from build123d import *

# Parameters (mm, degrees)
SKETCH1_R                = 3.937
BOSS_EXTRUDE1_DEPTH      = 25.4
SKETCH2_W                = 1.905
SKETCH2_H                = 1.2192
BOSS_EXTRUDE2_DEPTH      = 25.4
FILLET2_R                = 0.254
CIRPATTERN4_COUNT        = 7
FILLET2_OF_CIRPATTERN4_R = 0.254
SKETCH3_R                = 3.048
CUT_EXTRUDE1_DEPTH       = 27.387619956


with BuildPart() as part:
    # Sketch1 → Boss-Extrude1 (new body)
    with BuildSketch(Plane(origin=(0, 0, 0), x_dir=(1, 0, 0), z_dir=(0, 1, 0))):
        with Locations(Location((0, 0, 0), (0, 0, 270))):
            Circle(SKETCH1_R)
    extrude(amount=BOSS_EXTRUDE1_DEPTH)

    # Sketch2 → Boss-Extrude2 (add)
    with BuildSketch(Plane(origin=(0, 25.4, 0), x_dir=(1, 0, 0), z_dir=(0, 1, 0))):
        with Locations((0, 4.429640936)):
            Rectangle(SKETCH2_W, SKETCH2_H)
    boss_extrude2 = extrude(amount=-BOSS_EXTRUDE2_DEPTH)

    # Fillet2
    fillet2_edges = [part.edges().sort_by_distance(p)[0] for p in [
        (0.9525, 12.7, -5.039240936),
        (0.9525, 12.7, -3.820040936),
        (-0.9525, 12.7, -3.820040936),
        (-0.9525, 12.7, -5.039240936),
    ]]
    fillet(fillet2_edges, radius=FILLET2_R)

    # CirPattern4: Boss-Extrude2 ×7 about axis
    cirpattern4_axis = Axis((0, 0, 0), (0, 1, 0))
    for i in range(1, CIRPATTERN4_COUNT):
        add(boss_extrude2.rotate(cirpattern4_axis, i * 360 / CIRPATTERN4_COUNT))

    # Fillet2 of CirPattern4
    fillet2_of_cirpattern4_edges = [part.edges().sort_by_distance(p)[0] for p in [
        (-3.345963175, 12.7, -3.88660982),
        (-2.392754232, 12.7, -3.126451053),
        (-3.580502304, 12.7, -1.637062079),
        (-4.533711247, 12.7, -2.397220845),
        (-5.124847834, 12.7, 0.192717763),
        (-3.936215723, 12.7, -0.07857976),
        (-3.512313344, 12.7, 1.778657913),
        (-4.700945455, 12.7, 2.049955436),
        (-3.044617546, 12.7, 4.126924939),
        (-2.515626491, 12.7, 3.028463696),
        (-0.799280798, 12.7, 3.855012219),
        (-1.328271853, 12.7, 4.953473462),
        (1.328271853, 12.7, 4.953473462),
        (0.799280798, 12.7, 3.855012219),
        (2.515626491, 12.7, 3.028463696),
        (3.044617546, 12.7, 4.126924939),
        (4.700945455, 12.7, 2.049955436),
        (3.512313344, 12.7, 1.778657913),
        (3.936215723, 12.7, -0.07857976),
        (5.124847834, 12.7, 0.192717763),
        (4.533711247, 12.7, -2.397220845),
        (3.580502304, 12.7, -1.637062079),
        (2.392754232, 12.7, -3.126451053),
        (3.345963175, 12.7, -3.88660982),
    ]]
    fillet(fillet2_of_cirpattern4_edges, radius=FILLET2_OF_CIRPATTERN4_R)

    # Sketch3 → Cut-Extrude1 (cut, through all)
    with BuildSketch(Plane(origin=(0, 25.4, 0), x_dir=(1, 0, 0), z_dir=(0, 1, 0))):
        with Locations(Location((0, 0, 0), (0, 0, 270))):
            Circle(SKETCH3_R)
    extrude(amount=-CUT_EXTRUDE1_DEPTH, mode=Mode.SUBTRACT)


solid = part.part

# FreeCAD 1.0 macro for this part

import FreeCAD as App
import Part
import Sketcher

V = App.Vector
Q = App.Units.Quantity


def edges_at(feature, points):
    """Names of the edges that pass closest to the given points."""
    edges = feature.Shape.Edges
    near = lambda p: min(range(len(edges)), key=lambda i: edges[i].distToShape(Part.Vertex(*p))[0])
    return sorted({f"Edge{near(p) + 1}" for p in points})


def add_polygon(sketch, points):
    """Adds a closed chain of lines whose ends are joined by coincident constraints."""
    first, n = sketch.GeometryCount, len(points)
    for a, b in zip(points, points[1:] + points[:1]):
        sketch.addGeometry(Part.LineSegment(App.Vector(*a, 0), App.Vector(*b, 0)), False)
    for i in range(n):
        sketch.addConstraint(Sketcher.Constraint("Coincident", first + i, 2, first + (i + 1) % n, 1))

doc = App.newDocument("Part")
params = doc.addObject("Spreadsheet::Sheet", "Params")
for row, (alias, value) in enumerate([
    ("sketch1_diameter", "0.31 in"),
    ("pad1_length", "1 in"),
    ("sketch2_width", "0.075 in"),
    ("sketch2_height", "0.048 in"),
    ("pad2_length", "1 in"),
    ("fillet_radius", "0.01 in"),
    ("fillet2_radius", "0.01 in"),
    ("sketch3_diameter", "0.24 in"),
], start=1):
    params.set(f"A{row}", alias)
    params.set(f"B{row}", "=" + value)
    params.setAlias(f"B{row}", alias)

body = doc.addObject("PartDesign::Body", "Body")

# Sketch on XZ plane
sketch1 = body.newObject("Sketcher::SketchObject", "Sketch")
sketch1.AttachmentSupport = (doc.getObject("XZ_Plane"), [""])
sketch1.MapMode = "FlatFace"
sketch1.addGeometry(Part.Circle(V(0, 0, 0), V(0, 0, 1), 3.937), False)
sketch1.addConstraint([
    Sketcher.Constraint("Coincident", 0, 3, -1, 1),
    Sketcher.Constraint("Diameter", 0, Q("0.31 in")),
])
sketch1.setExpression("Constraints[1]", "Params.sketch1_diameter")
pad1 = body.newObject("PartDesign::Pad", "Pad")
pad1.Profile = sketch1
pad1.setExpression("Length", "Params.pad1_length")
pad1.Reversed = True

# Sketch on XZ plane
sketch2 = body.newObject("Sketcher::SketchObject", "Sketch001")
sketch2.AttachmentSupport = (doc.getObject("XZ_Plane"), [""])
sketch2.MapMode = "FlatFace"
sketch2.AttachmentOffset = App.Placement(V(0, 0, -1 * 25.4), App.Rotation())
add_polygon(sketch2, [(-0.9525, -5.039241), (-0.9525, -3.820041), (0.9525, -3.820041), (0.9525, -5.039241)])  # lines 0-3
sketch2.addConstraint([
    Sketcher.Constraint("Vertical", 0),
    Sketcher.Constraint("Horizontal", 1),
    Sketcher.Constraint("Vertical", 2),
    Sketcher.Constraint("Horizontal", 3),
    Sketcher.Constraint("DistanceX", 1, 1, 1, 2, Q("0.075 in")),
    Sketcher.Constraint("DistanceY", 0, 1, 0, 2, Q("0.048 in")),
    Sketcher.Constraint("DistanceX", 0, 2, -1, 1, Q("0.0375 in")),
    Sketcher.Constraint("DistanceY", 0, 2, -1, 1, 3.820041),
])
sketch2.setExpression("Constraints[8]", "Params.sketch2_width")
sketch2.setExpression("Constraints[9]", "Params.sketch2_height")
pad2 = body.newObject("PartDesign::Pad", "Pad001")
pad2.Profile = sketch2
pad2.setExpression("Length", "Params.pad2_length")
doc.recompute()

fillet = body.newObject("PartDesign::Fillet", "Fillet")
fillet.Base = (pad2, edges_at(pad2, [
    (0.953, 12.7, -5.039),
    (0.953, 12.7, -3.82),
    (-0.953, 12.7, -3.82),
    (-0.953, 12.7, -5.039),
]))
fillet.setExpression("Radius", "Params.fillet_radius")
doc.recompute()

polarpattern = body.newObject("PartDesign::PolarPattern", "PolarPattern")
polarpattern.Originals = [pad2]
polarpattern.Axis = (doc.getObject("Y_Axis"), [""])
polarpattern.Angle = 360
polarpattern.Occurrences = 7
body.Tip = polarpattern
doc.recompute()

fillet2 = body.newObject("PartDesign::Fillet", "Fillet001")
fillet2.Base = (polarpattern, edges_at(polarpattern, [
    (-3.346, 12.7, -3.887),
    (-2.393, 12.7, -3.126),
    (-3.581, 12.7, -1.637),
    (-4.534, 12.7, -2.397),
    (-5.125, 12.7, 0.193),
    (-3.936, 12.7, -0.079),
    (-3.512, 12.7, 1.779),
    (-4.701, 12.7, 2.05),
    (-3.045, 12.7, 4.127),
    (-2.516, 12.7, 3.028),
    (-0.799, 12.7, 3.855),
    (-1.328, 12.7, 4.953),
    (1.328, 12.7, 4.953),
    (0.799, 12.7, 3.855),
    (2.516, 12.7, 3.028),
    (3.045, 12.7, 4.127),
    (4.701, 12.7, 2.05),
    (3.512, 12.7, 1.779),
    (3.936, 12.7, -0.079),
    (5.125, 12.7, 0.193),
    (4.534, 12.7, -2.397),
    (3.581, 12.7, -1.637),
    (2.393, 12.7, -3.126),
    (3.346, 12.7, -3.887),
]))
fillet2.setExpression("Radius", "Params.fillet2_radius")

# Sketch on XZ plane
sketch3 = body.newObject("Sketcher::SketchObject", "Sketch002")
sketch3.AttachmentSupport = (doc.getObject("XZ_Plane"), [""])
sketch3.MapMode = "FlatFace"
sketch3.AttachmentOffset = App.Placement(V(0, 0, -1 * 25.4), App.Rotation())
sketch3.addGeometry(Part.Circle(V(0, 0, 0), V(0, 0, 1), 3.048), False)
sketch3.addConstraint([
    Sketcher.Constraint("Coincident", 0, 3, -1, 1),
    Sketcher.Constraint("Diameter", 0, Q("0.24 in")),
])
sketch3.setExpression("Constraints[1]", "Params.sketch3_diameter")
pocket1 = body.newObject("PartDesign::Pocket", "Pocket")
pocket1.Profile = sketch3
pocket1.Type = "ThroughAll"
pocket1.Reversed = True

doc.recompute()
